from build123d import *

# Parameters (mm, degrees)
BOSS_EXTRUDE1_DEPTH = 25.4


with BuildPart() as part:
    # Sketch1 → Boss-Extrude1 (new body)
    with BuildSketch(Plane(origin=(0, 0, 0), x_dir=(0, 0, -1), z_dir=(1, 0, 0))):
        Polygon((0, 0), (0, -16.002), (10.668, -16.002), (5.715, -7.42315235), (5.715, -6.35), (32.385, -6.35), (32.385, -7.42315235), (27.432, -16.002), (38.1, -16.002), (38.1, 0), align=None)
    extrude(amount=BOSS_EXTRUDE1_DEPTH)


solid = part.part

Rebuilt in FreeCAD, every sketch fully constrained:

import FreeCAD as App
import Part
import Sketcher

V = App.Vector
Q = App.Units.Quantity

doc = App.newDocument("Part")
body = doc.addObject("PartDesign::Body", "Body")

sketch1 = body.newObject("Sketcher::SketchObject", "Sketch")
sketch1.AttachmentSupport = (doc.getObject("YZ_Plane"), [""])
sketch1.MapMode = "FlatFace"
sketch1.addGeometry([
    Part.LineSegment(V(0, 0, 0), V(-16, 0, 0)),
    Part.LineSegment(V(-16, 0, 0), V(-16, -10.7, 0)),
    Part.LineSegment(V(-16, -10.7, 0), V(-7.4, -5.7, 0)),
    Part.LineSegment(V(-7.4, -5.7, 0), V(-6.3, -5.7, 0)),
    Part.LineSegment(V(-6.3, -5.7, 0), V(-6.3, -32.4, 0)),
    Part.LineSegment(V(-6.3, -32.4, 0), V(-7.4, -32.4, 0)),
    Part.LineSegment(V(-7.4, -32.4, 0), V(-16, -27.4, 0)),
    Part.LineSegment(V(-16, -27.4, 0), V(-16, -38.1, 0)),
    Part.LineSegment(V(-16, -38.1, 0), V(0, -38.1, 0)),
    Part.LineSegment(V(0, -38.1, 0), V(0, 0, 0)),
], False)
sketch1.addConstraint([
    Sketcher.Constraint("Coincident", 0, 2, 1, 1),
    Sketcher.Constraint("Coincident", 1, 2, 2, 1),
    Sketcher.Constraint("Coincident", 2, 2, 3, 1),
    Sketcher.Constraint("Coincident", 3, 2, 4, 1),
    Sketcher.Constraint("Coincident", 4, 2, 5, 1),
    Sketcher.Constraint("Coincident", 5, 2, 6, 1),
    Sketcher.Constraint("Coincident", 6, 2, 7, 1),
    Sketcher.Constraint("Coincident", 7, 2, 8, 1),
    Sketcher.Constraint("Coincident", 8, 2, 9, 1),
    Sketcher.Constraint("Coincident", 9, 2, 0, 1),
    Sketcher.Constraint("Horizontal", 0),
    Sketcher.Constraint("Vertical", 1),
    Sketcher.Constraint("Horizontal", 3),
    Sketcher.Constraint("Vertical", 4),
    Sketcher.Constraint("Horizontal", 5),
    Sketcher.Constraint("Vertical", 7),
    Sketcher.Constraint("Horizontal", 8),
    Sketcher.Constraint("Vertical", 9),
    Sketcher.Constraint("Coincident", 9, 2, -1, 1),
    Sketcher.Constraint("Vertical", 2, 2, 5, 2),
    Sketcher.Constraint("Vertical", 1, 2, 6, 2),
    Sketcher.Constraint("Equal", 1, 7),
    Sketcher.Constraint("Equal", 2, 6),
    Sketcher.Constraint("DistanceY", 9, 1, 9, 2, Q("1.5 in")),
    Sketcher.Constraint("Angle", 2, Q("30 deg")),
    Sketcher.Constraint("DistanceX", 0, 2, 0, 1, Q("0.63 in")),
    Sketcher.Constraint("DistanceY", 1, 2, 1, 1, Q("0.42 in")),
    Sketcher.Constraint("DistanceY", 4, 2, 4, 1, Q("1.05 in")),
    Sketcher.Constraint("DistanceX", 3, 2, -1, 1, Q("0.25 in")),
])
pad1 = body.newObject("PartDesign::Pad", "Pad")
pad1.Profile = sketch1
pad1.Length = Q("1 in")

doc.recompute()
